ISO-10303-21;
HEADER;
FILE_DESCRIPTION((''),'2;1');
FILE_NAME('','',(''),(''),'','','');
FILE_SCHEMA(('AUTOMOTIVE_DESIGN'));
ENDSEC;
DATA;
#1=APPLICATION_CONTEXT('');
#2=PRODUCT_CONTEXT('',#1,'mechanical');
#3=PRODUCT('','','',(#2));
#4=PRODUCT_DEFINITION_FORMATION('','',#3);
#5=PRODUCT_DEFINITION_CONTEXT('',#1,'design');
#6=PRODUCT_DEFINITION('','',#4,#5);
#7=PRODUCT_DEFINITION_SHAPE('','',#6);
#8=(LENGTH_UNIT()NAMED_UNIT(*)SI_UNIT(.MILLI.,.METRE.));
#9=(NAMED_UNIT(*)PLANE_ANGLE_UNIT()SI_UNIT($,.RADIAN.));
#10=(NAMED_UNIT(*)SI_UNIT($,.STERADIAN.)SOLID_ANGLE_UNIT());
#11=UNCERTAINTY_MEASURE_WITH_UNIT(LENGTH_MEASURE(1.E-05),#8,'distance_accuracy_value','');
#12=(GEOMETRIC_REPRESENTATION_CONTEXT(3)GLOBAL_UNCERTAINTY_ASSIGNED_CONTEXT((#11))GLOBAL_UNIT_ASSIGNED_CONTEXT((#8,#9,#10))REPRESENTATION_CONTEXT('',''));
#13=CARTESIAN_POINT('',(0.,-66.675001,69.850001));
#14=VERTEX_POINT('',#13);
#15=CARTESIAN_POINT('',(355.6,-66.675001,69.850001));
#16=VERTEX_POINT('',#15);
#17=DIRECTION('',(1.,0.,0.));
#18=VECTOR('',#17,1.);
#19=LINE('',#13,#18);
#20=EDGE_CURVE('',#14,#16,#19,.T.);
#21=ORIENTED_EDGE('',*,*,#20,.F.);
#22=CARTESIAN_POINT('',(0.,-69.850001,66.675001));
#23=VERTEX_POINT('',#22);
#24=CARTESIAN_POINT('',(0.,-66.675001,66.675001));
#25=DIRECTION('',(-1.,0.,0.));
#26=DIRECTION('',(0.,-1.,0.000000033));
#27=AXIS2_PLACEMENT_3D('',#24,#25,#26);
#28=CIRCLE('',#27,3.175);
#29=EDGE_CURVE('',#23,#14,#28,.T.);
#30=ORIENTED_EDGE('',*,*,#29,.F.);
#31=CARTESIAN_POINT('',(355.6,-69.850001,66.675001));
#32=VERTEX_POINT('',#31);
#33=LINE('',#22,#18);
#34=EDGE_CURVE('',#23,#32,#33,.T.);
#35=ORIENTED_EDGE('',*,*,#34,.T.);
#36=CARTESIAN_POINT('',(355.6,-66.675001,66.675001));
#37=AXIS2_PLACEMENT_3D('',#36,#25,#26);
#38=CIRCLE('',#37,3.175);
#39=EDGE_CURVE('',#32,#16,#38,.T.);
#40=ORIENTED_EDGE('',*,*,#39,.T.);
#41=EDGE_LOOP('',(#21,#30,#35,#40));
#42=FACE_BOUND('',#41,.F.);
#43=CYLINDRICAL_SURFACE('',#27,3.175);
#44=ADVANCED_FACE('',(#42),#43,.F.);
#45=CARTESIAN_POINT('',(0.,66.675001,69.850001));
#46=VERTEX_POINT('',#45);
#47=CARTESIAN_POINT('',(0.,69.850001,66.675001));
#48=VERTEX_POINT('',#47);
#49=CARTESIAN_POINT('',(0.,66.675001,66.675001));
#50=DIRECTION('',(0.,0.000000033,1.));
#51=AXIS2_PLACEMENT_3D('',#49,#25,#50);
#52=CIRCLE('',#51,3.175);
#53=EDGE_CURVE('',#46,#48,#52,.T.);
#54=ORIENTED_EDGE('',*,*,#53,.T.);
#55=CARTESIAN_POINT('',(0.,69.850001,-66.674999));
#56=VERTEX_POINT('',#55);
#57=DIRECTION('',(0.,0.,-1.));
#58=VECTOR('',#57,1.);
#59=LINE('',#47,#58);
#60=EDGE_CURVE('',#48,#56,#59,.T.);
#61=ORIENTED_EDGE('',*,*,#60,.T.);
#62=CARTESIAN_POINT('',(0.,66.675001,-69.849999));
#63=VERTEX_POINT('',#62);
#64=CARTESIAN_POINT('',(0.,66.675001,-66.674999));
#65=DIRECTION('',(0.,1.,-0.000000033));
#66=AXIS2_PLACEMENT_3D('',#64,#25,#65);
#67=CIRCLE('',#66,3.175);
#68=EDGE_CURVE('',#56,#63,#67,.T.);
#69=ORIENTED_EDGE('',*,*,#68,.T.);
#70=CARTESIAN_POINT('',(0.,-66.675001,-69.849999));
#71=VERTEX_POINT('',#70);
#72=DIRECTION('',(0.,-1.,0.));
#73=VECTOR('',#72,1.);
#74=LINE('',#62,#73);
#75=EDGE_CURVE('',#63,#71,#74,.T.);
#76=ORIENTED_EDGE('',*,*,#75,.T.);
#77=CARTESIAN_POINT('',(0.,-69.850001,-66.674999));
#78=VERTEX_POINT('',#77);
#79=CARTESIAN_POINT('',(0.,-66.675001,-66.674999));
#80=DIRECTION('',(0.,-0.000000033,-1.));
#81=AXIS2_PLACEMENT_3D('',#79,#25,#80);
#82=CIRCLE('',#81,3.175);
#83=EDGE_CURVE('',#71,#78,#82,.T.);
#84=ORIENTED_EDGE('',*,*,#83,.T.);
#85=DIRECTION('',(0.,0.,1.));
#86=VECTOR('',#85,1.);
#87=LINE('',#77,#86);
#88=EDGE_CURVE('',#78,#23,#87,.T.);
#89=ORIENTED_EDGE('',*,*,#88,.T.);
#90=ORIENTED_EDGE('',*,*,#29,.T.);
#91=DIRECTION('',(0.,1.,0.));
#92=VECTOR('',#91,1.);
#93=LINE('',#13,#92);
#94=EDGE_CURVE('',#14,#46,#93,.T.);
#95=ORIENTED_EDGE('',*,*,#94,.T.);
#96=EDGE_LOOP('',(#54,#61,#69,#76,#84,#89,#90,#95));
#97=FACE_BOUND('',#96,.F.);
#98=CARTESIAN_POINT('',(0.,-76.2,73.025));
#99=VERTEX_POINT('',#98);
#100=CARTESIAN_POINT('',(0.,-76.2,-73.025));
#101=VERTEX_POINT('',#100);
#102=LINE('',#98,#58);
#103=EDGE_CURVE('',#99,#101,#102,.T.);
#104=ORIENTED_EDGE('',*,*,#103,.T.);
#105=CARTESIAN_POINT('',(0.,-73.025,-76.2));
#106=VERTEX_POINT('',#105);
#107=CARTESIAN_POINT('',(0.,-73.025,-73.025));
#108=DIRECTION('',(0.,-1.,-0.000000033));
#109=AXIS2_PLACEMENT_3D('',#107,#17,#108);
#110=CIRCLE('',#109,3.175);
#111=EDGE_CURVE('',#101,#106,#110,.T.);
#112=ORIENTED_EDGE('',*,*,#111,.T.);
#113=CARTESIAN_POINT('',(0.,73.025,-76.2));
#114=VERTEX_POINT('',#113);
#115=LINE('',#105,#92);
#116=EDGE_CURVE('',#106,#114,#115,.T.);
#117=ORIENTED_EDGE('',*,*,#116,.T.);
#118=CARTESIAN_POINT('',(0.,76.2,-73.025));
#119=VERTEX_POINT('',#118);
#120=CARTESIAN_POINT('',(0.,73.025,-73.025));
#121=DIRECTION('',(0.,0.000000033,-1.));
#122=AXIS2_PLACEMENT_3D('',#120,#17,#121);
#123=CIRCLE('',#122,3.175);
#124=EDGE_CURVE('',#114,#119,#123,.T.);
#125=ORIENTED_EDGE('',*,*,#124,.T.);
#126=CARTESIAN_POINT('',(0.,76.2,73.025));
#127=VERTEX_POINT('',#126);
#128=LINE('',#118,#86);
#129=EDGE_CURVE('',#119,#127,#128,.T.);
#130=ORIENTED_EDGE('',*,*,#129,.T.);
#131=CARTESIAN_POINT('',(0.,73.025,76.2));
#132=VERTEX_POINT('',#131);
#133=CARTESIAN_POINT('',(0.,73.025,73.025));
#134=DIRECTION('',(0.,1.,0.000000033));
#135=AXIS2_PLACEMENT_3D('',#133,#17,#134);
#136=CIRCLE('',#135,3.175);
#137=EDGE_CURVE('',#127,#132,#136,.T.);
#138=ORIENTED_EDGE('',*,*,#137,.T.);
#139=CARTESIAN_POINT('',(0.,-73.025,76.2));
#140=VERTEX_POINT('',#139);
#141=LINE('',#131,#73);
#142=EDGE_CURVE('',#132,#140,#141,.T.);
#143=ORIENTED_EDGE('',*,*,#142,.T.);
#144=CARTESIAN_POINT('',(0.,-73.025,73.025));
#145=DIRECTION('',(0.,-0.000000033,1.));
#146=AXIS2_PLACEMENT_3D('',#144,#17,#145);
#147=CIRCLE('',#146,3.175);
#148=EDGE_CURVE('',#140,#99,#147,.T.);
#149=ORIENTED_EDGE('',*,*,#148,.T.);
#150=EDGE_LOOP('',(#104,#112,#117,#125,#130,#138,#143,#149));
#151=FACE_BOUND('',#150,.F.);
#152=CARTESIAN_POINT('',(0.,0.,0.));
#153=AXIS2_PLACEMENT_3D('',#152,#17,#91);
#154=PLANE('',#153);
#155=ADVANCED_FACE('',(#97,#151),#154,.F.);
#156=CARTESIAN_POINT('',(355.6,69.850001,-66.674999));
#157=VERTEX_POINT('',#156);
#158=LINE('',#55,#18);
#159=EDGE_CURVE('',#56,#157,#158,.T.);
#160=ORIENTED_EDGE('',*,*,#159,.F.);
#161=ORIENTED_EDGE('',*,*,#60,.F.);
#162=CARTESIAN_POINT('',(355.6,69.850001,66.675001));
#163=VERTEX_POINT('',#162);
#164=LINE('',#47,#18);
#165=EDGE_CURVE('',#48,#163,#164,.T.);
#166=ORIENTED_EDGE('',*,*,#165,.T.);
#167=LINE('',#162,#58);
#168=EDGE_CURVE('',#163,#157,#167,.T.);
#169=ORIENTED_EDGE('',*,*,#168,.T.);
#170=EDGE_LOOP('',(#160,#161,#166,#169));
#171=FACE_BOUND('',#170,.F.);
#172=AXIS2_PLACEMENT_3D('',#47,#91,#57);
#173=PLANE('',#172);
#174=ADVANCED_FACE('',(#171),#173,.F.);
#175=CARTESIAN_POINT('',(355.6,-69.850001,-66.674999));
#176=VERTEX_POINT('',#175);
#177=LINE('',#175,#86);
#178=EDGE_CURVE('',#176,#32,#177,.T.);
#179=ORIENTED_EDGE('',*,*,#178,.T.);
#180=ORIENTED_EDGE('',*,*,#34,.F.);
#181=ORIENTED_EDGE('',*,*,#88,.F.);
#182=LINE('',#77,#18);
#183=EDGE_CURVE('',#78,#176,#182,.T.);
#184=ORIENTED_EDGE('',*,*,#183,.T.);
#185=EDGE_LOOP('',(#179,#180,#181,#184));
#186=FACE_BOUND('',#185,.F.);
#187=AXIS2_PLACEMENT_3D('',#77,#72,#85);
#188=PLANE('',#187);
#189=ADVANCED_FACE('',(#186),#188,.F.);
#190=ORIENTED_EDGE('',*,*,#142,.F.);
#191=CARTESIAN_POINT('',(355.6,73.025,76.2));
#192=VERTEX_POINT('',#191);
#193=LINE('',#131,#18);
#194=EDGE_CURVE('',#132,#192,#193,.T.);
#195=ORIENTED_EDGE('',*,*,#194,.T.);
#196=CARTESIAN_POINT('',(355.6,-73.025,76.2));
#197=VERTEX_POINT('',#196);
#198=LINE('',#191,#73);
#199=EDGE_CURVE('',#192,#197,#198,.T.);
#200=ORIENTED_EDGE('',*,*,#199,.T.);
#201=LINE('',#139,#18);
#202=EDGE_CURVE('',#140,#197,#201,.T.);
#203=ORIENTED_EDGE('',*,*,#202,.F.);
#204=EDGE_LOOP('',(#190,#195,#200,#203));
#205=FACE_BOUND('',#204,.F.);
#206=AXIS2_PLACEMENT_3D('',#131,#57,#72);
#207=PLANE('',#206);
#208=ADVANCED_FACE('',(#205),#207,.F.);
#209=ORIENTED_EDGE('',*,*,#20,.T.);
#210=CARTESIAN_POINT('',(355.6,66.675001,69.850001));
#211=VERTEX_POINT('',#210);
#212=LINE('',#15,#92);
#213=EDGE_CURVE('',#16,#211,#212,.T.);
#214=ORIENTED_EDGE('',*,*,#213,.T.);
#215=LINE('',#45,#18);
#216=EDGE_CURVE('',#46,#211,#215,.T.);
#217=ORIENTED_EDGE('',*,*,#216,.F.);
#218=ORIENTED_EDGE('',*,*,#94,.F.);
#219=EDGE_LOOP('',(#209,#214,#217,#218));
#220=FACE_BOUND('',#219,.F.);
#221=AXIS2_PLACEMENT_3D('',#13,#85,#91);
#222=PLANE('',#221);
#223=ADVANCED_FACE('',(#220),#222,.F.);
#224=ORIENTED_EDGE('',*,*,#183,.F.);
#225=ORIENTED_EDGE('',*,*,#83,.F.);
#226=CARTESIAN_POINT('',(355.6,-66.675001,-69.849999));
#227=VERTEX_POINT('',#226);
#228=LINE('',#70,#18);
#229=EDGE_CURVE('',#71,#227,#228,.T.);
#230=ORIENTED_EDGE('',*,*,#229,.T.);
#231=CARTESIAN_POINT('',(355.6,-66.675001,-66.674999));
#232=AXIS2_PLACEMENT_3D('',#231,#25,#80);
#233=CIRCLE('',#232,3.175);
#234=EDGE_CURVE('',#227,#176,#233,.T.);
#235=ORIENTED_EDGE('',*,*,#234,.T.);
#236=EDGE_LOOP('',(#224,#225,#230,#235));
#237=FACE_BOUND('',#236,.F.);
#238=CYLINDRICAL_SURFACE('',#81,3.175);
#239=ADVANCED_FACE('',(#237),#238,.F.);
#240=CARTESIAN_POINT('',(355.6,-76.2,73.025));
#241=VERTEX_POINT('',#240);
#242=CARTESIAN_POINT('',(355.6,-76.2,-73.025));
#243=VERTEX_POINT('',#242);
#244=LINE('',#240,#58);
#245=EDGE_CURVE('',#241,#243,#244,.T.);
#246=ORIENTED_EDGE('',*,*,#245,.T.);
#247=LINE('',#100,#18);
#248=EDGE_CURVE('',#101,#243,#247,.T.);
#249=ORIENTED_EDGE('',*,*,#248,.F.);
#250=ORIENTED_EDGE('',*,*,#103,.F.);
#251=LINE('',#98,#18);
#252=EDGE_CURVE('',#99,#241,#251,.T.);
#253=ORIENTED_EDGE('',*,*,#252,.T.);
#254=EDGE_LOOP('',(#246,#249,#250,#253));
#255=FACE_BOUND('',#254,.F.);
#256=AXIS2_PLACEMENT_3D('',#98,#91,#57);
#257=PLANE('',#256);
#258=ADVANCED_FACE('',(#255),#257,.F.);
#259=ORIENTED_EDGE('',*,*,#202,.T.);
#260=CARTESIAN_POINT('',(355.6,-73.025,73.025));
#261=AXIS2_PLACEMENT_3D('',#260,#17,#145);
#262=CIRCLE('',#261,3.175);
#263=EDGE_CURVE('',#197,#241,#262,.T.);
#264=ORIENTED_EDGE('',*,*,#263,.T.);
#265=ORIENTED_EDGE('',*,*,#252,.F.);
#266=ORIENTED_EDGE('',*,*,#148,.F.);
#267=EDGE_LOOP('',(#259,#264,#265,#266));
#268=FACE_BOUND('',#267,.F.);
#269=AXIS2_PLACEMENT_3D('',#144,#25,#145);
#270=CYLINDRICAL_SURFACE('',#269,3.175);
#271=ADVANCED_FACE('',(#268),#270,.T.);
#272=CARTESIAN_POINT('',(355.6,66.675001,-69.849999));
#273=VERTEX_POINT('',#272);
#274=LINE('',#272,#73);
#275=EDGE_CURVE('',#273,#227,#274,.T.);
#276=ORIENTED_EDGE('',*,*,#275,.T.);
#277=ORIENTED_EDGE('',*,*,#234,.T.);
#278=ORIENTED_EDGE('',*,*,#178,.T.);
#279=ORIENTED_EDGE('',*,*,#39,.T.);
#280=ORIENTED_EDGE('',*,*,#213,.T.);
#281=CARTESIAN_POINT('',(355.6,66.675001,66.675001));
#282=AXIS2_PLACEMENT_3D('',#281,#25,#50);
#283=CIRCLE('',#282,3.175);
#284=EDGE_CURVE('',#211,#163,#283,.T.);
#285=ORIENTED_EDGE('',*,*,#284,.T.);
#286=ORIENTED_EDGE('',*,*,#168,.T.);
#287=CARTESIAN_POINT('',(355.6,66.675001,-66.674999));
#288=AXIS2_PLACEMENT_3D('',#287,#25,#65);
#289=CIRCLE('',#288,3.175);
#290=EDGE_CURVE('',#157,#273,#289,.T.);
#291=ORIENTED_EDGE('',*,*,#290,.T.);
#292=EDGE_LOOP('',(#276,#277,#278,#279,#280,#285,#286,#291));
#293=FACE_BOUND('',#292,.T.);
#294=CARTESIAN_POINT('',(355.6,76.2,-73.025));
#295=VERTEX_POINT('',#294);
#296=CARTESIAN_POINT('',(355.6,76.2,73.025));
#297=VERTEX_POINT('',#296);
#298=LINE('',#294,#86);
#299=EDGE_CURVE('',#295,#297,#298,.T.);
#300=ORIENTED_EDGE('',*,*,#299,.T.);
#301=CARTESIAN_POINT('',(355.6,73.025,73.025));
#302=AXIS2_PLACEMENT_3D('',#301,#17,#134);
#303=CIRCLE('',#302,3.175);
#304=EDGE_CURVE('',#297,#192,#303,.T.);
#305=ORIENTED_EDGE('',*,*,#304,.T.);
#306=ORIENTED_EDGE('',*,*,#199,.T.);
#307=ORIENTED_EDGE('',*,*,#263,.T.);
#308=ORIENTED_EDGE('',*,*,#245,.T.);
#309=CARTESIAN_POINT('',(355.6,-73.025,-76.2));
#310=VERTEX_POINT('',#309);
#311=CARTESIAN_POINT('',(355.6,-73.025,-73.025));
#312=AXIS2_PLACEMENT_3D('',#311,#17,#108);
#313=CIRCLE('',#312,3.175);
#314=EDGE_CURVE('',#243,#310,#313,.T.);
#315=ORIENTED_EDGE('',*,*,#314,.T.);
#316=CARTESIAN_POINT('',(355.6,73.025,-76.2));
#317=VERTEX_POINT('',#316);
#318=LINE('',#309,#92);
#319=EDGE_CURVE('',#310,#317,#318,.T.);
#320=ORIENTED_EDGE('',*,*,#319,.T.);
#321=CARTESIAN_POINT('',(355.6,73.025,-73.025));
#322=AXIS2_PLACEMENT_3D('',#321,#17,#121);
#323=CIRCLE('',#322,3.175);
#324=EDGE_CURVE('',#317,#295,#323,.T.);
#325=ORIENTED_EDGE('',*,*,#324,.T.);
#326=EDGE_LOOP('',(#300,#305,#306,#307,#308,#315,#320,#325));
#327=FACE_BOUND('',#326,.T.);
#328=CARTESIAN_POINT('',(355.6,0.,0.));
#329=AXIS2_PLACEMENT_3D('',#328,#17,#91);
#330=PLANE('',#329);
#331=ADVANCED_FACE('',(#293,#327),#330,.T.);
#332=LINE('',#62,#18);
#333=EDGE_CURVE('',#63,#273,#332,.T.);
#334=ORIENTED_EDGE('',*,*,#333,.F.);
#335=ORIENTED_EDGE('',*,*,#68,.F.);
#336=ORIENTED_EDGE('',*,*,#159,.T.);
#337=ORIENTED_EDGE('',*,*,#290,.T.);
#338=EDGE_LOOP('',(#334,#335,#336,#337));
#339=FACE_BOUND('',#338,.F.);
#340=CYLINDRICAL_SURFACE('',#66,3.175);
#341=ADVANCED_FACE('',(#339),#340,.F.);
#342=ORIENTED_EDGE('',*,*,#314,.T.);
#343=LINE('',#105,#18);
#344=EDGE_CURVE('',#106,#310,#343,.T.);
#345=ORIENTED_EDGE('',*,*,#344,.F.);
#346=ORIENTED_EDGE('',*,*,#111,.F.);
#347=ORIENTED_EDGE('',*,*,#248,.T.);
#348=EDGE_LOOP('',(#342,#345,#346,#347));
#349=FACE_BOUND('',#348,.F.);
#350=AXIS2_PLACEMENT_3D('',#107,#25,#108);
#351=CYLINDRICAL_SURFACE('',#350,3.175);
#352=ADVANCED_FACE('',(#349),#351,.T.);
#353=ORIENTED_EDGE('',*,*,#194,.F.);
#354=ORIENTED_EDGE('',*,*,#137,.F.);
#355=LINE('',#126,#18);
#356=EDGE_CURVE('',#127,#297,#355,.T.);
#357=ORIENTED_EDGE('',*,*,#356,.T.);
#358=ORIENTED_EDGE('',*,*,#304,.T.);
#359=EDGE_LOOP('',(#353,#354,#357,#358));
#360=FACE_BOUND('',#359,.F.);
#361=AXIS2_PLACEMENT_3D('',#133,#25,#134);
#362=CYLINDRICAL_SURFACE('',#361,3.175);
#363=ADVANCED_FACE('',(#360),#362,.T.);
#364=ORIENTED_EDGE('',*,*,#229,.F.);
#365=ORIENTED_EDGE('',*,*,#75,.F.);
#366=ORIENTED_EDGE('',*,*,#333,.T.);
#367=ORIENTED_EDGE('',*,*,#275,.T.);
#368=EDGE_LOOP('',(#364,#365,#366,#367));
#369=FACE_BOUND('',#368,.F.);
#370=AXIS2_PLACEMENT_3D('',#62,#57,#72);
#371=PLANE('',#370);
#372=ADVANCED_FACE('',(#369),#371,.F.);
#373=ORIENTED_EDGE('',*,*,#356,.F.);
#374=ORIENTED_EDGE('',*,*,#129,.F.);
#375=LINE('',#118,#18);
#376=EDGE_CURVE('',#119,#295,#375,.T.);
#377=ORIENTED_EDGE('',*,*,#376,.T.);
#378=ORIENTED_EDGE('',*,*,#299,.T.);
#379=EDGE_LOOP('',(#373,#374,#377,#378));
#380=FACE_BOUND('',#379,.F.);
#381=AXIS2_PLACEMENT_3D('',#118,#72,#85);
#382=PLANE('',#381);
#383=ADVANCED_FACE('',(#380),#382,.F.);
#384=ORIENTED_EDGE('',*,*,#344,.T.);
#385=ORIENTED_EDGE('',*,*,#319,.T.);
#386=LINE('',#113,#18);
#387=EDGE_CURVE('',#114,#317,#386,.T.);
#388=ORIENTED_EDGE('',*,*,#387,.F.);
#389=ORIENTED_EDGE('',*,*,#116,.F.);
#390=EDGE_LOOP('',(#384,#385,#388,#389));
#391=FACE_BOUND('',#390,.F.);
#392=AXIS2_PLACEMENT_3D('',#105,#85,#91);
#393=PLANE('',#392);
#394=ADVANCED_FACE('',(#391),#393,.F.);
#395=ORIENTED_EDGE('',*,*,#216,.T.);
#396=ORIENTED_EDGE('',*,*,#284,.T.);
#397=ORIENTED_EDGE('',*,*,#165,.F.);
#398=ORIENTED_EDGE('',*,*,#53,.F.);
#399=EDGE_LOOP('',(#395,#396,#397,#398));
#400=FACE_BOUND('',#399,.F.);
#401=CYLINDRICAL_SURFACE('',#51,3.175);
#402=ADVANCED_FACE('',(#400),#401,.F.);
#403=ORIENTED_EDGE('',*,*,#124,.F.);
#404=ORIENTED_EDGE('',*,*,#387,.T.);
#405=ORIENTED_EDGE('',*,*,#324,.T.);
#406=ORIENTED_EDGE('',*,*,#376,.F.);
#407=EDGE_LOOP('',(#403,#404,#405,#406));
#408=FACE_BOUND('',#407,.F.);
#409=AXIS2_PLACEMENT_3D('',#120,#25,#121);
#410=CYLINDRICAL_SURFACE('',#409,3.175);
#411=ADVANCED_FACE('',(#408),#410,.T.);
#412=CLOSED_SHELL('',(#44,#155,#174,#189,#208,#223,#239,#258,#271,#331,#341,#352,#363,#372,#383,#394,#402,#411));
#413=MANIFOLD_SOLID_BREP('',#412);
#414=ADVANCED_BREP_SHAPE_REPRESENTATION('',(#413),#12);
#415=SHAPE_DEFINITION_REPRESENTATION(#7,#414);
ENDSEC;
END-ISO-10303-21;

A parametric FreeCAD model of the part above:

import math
import FreeCAD as App
import Part
import Sketcher
Q = App.Units.Quantity

doc = App.newDocument("Part")
body = doc.addObject("PartDesign::Body", "Body")

# Sketch on YZ plane
sketch1 = body.newObject("Sketcher::SketchObject", "Sketch")
sketch1.AttachmentSupport = (doc.getObject("YZ_Plane"), [""])
sketch1.MapMode = "FlatFace"
sketch1.addGeometry(Part.LineSegment(App.Vector(73, 76.2, 0), App.Vector(-73, 76.2, 0)), False)
sketch1.addGeometry(Part.ArcOfCircle(Part.Circle(App.Vector(-73, 73, 0), App.Vector(0, 0, 1), 3.2), math.radians(90), math.radians(180)), False)
sketch1.addGeometry(Part.LineSegment(App.Vector(-76.2, 73, 0), App.Vector(-76.2, -73, 0)), False)
sketch1.addGeometry(Part.ArcOfCircle(Part.Circle(App.Vector(-73, -73, 0), App.Vector(0, 0, 1), 3.2), math.radians(-180), math.radians(-90)), False)
sketch1.addGeometry(Part.LineSegment(App.Vector(-73, -76.2, 0), App.Vector(73, -76.2, 0)), False)
sketch1.addGeometry(Part.ArcOfCircle(Part.Circle(App.Vector(73, -73, 0), App.Vector(0, 0, 1), 3.2), math.radians(-90), math.radians(0)), False)
sketch1.addGeometry(Part.LineSegment(App.Vector(76.2, -73, 0), App.Vector(76.2, 73, 0)), False)
sketch1.addGeometry(Part.ArcOfCircle(Part.Circle(App.Vector(73, 73, 0), App.Vector(0, 0, 1), 3.2), math.radians(0), math.radians(90)), False)
sketch1.addGeometry(Part.ArcOfCircle(Part.Circle(App.Vector(-66.7, -66.7, 0), App.Vector(0, 0, 1), 3.2), math.radians(-180), math.radians(-90)), False)
sketch1.addGeometry(Part.LineSegment(App.Vector(-69.9, -66.7, 0), App.Vector(-69.9, 66.7, 0)), False)
sketch1.addGeometry(Part.ArcOfCircle(Part.Circle(App.Vector(-66.7, 66.7, 0), App.Vector(0, 0, 1), 3.2), math.radians(90), math.radians(180)), False)
sketch1.addGeometry(Part.LineSegment(App.Vector(-66.7, 69.9, 0), App.Vector(66.7, 69.9, 0)), False)
sketch1.addGeometry(Part.ArcOfCircle(Part.Circle(App.Vector(66.7, 66.7, 0), App.Vector(0, 0, 1), 3.2), math.radians(0), math.radians(90)), False)
sketch1.addGeometry(Part.LineSegment(App.Vector(69.9, 66.7, 0), App.Vector(69.9, -66.7, 0)), False)
sketch1.addGeometry(Part.ArcOfCircle(Part.Circle(App.Vector(66.7, -66.7, 0), App.Vector(0, 0, 1), 3.2), math.radians(-90), math.radians(0)), False)
sketch1.addGeometry(Part.LineSegment(App.Vector(66.7, -69.8, 0), App.Vector(-66.7, -69.8, 0)), False)
sketch1.addConstraint(Sketcher.Constraint("Tangent", 0, 2, 1, 1))
sketch1.addConstraint(Sketcher.Constraint("Tangent", 1, 2, 2, 1))
sketch1.addConstraint(Sketcher.Constraint("Tangent", 2, 2, 3, 1))
sketch1.addConstraint(Sketcher.Constraint("Tangent", 3, 2, 4, 1))
sketch1.addConstraint(Sketcher.Constraint("Tangent", 4, 2, 5, 1))
sketch1.addConstraint(Sketcher.Constraint("Tangent", 5, 2, 6, 1))
sketch1.addConstraint(Sketcher.Constraint("Tangent", 6, 2, 7, 1))
sketch1.addConstraint(Sketcher.Constraint("Tangent", 7, 2, 0, 1))
sketch1.addConstraint(Sketcher.Constraint("Tangent", 8, 1, 9, 1))
sketch1.addConstraint(Sketcher.Constraint("Tangent", 9, 2, 10, 2))
sketch1.addConstraint(Sketcher.Constraint("Tangent", 10, 1, 11, 1))
sketch1.addConstraint(Sketcher.Constraint("Tangent", 11, 2, 12, 2))
sketch1.addConstraint(Sketcher.Constraint("Tangent", 12, 1, 13, 1))
sketch1.addConstraint(Sketcher.Constraint("Tangent", 13, 2, 14, 2))
sketch1.addConstraint(Sketcher.Constraint("Tangent", 14, 1, 15, 1))
sketch1.addConstraint(Sketcher.Constraint("Tangent", 15, 2, 8, 2))
sketch1.addConstraint(Sketcher.Constraint("Horizontal", 0))
sketch1.addConstraint(Sketcher.Constraint("Vertical", 2))
sketch1.addConstraint(Sketcher.Constraint("Horizontal", 4))
sketch1.addConstraint(Sketcher.Constraint("Vertical", 6))
sketch1.addConstraint(Sketcher.Constraint("Vertical", 9))
sketch1.addConstraint(Sketcher.Constraint("Horizontal", 11))
sketch1.addConstraint(Sketcher.Constraint("Vertical", 13))
sketch1.addConstraint(Sketcher.Constraint("Horizontal", 15))
sketch1.addConstraint(Sketcher.Constraint("Equal", 1, 3))
sketch1.addConstraint(Sketcher.Constraint("Equal", 3, 5))
sketch1.addConstraint(Sketcher.Constraint("Equal", 5, 7))
sketch1.addConstraint(Sketcher.Constraint("Equal", 7, 8))
sketch1.addConstraint(Sketcher.Constraint("Equal", 8, 10))
sketch1.addConstraint(Sketcher.Constraint("Equal", 10, 12))
sketch1.addConstraint(Sketcher.Constraint("Equal", 12, 14))
sketch1.addConstraint(Sketcher.Constraint("Symmetric", 1, 3, 5, 3, -1, 1))
sketch1.addConstraint(Sketcher.Constraint("Symmetric", 8, 3, 12, 3, -1, 1))
sketch1.addConstraint(Sketcher.Constraint("Equal", 4, 2))
sketch1.addConstraint(Sketcher.Constraint("Equal", 15, 9))
sketch1.addConstraint(Sketcher.Constraint("DistanceY", -1, 1, 0, 2, Q("3 in")))
sketch1.addConstraint(Sketcher.Constraint("Radius", 1, Q("0.125 in")))
sketch1.addConstraint(Sketcher.Constraint("DistanceX", 11, 1, 11, 2, Q("5.2500001 in")))
pad1 = body.newObject("PartDesign::Pad", "Pad")
pad1.Profile = sketch1
pad1.Length = Q("14 in")

doc.recompute()
